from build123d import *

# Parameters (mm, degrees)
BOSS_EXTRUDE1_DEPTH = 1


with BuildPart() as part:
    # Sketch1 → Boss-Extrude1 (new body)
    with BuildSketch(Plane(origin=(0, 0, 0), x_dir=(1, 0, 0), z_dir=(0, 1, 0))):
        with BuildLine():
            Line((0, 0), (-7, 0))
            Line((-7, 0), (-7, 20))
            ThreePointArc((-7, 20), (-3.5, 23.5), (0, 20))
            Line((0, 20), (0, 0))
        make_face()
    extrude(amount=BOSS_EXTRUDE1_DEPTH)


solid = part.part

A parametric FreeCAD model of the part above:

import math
import FreeCAD as App
import Part
import Sketcher
Q = App.Units.Quantity

doc = App.newDocument("Part")
body = doc.addObject("PartDesign::Body", "Body")

sketch1 = doc.addObject("Sketcher::SketchObject", "Sketch")
body.addObject(sketch1)
sketch1.AttachmentSupport = (doc.XZ_Plane, [""])
sketch1.MapMode = "FlatFace"
sketch1.addGeometry(Part.LineSegment(App.Vector(-7, 0, 0), App.Vector(0, 0, 0)), False)
sketch1.addGeometry(Part.LineSegment(App.Vector(0, 0, 0), App.Vector(0, -20, 0)), False)
sketch1.addGeometry(Part.ArcOfCircle(Part.Circle(App.Vector(-3.5, -20, 0), App.Vector(0, 0, 1), 3.5), math.radians(180), math.radians(360)), False)
sketch1.addGeometry(Part.LineSegment(App.Vector(-7, -20, 0), App.Vector(-7, 0, 0)), False)
sketch1.addConstraint(Sketcher.Constraint("Coincident", 0, 2, 1, 1))
sketch1.addConstraint(Sketcher.Constraint("Tangent", 1, 2, 2, 2))
sketch1.addConstraint(Sketcher.Constraint("Tangent", 2, 1, 3, 1))
sketch1.addConstraint(Sketcher.Constraint("Coincident", 3, 2, 0, 1))
sketch1.addConstraint(Sketcher.Constraint("Horizontal", 0))
sketch1.addConstraint(Sketcher.Constraint("Vertical", 1))
sketch1.addConstraint(Sketcher.Constraint("Vertical", 3))
sketch1.addConstraint(Sketcher.Constraint("Coincident", 0, 2, -1, 1))
sketch1.addConstraint(Sketcher.Constraint("Radius", 2, Q("3.5 mm")))
sketch1.addConstraint(Sketcher.Constraint("DistanceY", 1, 2, 1, 1, Q("20 mm")))
pad1 = doc.addObject("PartDesign::Pad", "Pad")
body.addObject(pad1)
pad1.Profile = sketch1
pad1.Length = 1
pad1.Reversed = True

doc.recompute()
